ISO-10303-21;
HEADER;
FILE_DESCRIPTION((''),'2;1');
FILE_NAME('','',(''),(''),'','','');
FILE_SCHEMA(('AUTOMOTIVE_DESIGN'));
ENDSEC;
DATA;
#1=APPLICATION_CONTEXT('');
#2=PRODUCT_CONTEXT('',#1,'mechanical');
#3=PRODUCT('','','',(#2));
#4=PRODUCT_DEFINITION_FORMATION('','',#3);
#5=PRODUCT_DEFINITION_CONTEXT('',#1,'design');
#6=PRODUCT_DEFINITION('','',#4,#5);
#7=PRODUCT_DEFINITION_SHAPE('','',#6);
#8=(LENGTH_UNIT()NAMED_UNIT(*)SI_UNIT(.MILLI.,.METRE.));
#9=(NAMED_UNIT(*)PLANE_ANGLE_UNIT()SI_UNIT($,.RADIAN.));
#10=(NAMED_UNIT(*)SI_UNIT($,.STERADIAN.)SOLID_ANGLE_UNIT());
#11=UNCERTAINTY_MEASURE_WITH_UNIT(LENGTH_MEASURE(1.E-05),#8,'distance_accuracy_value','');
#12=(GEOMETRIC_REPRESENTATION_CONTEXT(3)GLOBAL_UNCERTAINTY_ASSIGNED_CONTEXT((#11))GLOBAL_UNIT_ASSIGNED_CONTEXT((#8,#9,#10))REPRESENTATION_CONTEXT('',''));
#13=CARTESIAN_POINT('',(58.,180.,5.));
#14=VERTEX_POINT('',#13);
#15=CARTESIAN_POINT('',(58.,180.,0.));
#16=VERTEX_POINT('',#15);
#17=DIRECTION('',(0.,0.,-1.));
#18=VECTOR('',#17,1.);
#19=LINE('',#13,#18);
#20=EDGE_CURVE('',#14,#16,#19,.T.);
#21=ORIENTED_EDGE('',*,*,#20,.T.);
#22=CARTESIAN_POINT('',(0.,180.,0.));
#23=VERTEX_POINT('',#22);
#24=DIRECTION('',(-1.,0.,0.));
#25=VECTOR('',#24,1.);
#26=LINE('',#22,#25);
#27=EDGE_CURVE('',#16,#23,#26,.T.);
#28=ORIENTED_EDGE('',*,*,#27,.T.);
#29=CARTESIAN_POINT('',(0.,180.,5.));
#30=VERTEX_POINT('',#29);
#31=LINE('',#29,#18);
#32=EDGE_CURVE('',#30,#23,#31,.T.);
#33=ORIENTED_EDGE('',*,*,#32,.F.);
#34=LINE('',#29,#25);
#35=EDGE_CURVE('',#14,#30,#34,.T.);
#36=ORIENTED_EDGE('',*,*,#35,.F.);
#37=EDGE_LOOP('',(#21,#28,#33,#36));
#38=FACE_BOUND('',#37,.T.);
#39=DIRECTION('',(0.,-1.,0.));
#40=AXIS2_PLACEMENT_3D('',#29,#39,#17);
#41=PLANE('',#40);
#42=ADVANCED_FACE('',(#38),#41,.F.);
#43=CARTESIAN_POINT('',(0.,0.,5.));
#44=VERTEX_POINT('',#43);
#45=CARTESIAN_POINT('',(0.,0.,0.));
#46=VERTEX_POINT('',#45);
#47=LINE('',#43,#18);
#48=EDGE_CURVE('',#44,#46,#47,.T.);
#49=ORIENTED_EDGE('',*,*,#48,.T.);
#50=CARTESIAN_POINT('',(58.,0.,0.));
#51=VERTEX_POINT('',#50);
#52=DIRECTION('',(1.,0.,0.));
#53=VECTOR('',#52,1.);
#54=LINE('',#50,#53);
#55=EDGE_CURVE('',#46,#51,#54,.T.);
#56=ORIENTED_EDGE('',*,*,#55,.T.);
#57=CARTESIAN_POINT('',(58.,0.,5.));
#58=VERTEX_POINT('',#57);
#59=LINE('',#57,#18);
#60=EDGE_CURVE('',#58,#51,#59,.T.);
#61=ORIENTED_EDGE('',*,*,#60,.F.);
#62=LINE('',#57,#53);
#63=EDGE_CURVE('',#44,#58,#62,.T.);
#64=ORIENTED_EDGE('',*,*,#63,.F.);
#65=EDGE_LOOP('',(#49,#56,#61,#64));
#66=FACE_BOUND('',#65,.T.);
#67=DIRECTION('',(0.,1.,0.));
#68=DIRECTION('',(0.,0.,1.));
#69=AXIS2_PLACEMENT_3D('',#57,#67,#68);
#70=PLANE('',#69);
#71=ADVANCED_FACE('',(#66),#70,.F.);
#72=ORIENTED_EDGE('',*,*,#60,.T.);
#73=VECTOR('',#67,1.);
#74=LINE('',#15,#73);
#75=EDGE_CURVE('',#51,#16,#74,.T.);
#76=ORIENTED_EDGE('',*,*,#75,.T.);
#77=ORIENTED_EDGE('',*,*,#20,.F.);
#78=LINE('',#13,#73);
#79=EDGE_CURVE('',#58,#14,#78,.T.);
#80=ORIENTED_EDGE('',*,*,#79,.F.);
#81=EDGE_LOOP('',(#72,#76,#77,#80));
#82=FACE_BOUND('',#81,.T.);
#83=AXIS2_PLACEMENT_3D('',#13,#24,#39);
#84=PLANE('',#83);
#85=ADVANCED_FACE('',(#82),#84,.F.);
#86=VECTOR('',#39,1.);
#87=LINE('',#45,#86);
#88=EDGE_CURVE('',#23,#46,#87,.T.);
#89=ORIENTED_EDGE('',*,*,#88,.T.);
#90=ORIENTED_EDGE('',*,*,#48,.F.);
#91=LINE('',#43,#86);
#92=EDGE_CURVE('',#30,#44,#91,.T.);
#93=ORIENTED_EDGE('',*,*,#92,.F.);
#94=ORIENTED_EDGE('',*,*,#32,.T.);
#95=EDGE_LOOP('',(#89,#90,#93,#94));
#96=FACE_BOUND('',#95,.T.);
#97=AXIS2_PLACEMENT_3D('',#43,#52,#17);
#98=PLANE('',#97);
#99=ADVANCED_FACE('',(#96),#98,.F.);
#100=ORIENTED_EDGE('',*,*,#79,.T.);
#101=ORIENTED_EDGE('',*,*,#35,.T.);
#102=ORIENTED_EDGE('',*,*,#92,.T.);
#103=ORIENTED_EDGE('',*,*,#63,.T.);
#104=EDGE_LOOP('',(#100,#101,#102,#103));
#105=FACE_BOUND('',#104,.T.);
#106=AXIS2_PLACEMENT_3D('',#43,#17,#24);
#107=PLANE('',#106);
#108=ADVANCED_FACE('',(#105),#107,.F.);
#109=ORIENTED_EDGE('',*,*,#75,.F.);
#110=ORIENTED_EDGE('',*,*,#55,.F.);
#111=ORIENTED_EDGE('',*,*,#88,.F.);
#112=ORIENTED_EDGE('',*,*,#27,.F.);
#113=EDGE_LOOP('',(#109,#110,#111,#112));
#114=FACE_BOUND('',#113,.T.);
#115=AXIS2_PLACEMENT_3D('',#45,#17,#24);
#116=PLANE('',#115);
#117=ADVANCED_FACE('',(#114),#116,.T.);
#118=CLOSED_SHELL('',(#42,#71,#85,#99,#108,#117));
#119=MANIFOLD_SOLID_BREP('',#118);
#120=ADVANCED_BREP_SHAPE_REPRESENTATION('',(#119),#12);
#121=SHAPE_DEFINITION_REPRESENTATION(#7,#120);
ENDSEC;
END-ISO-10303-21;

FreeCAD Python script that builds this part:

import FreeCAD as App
import Part
import Sketcher


def add_polygon(sketch, points):
    """Adds a closed chain of lines whose ends are joined by coincident constraints."""
    first, n = sketch.GeometryCount, len(points)
    for a, b in zip(points, points[1:] + points[:1]):
        sketch.addGeometry(Part.LineSegment(App.Vector(*a, 0), App.Vector(*b, 0)), False)
    for i in range(n):
        sketch.addConstraint(Sketcher.Constraint("Coincident", first + i, 2, first + (i + 1) % n, 1))

doc = App.newDocument("Part")
body = doc.addObject("PartDesign::Body", "Body")

# Sketch on XY plane
sketch1 = body.newObject("Sketcher::SketchObject", "Sketch")
sketch1.AttachmentSupport = (doc.getObject("XY_Plane"), [""])
sketch1.MapMode = "FlatFace"
add_polygon(sketch1, [(0, 180), (0, 0), (58, 0), (58, 180)])  # lines 0-3
sketch1.addConstraint([
    Sketcher.Constraint("Vertical", 0),
    Sketcher.Constraint("Horizontal", 1),
    Sketcher.Constraint("Vertical", 2),
    Sketcher.Constraint("Horizontal", 3),
    Sketcher.Constraint("Coincident", 0, 2, -1, 1),
    Sketcher.Constraint("DistanceX", 1, 1, 1, 2, 58.0),
    Sketcher.Constraint("DistanceY", 0, 2, 0, 1, 180.0),
])
pad1 = body.newObject("PartDesign::Pad", "Pad")
pad1.Profile = sketch1
pad1.Length = 5

doc.recompute()
